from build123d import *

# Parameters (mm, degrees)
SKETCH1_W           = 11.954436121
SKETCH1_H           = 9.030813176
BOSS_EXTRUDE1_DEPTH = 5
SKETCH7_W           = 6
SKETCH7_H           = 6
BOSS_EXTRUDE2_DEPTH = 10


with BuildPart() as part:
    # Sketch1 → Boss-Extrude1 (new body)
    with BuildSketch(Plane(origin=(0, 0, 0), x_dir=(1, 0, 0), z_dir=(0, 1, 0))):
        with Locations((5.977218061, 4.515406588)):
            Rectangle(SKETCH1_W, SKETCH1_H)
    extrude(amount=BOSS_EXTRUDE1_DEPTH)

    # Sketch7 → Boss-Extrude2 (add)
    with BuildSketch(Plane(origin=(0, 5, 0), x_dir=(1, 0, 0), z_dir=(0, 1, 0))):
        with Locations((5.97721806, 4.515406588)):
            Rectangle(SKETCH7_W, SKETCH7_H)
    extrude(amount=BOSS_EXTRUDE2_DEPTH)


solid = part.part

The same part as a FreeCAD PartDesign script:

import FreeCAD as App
import Part
import Sketcher
from FreeCAD import Vector


def add_polygon(sketch, points):
    """Adds a closed chain of lines whose ends are joined by coincident constraints."""
    first, n = sketch.GeometryCount, len(points)
    for a, b in zip(points, points[1:] + points[:1]):
        sketch.addGeometry(Part.LineSegment(App.Vector(*a, 0), App.Vector(*b, 0)), False)
    for i in range(n):
        sketch.addConstraint(Sketcher.Constraint("Coincident", first + i, 2, first + (i + 1) % n, 1))

doc = App.newDocument("Part")
params = doc.addObject("Spreadsheet::Sheet", "Params")
for row, (alias, value) in enumerate([
    ("pad1_length", "5 mm"),
    ("sketch2_width", "6 mm"),
    ("pad2_length", "10 mm"),
], start=1):
    params.set(f"A{row}", alias)
    params.set(f"B{row}", "=" + value)
    params.setAlias(f"B{row}", alias)

body = doc.addObject("PartDesign::Body", "Body")

sketch1 = body.newObject("Sketcher::SketchObject", "Sketch")
sketch1.AttachmentSupport = (doc.getObject("XZ_Plane"), [""])
sketch1.MapMode = "FlatFace"
add_polygon(sketch1, [(0, -9.030813), (0, 0), (11.954436, 0), (11.954436, -9.030813)])
sketch1.addConstraint([
    Sketcher.Constraint("Vertical", 0),
    Sketcher.Constraint("Horizontal", 1),
    Sketcher.Constraint("Vertical", 2),
    Sketcher.Constraint("Horizontal", 3),
    Sketcher.Constraint("Coincident", 0, 2, -1, 1),
    Sketcher.Constraint("DistanceX", 1, 1, 1, 2, 11.954436),
    Sketcher.Constraint("DistanceY", 0, 1, 0, 2, 9.030813),
])
pad1 = body.newObject("PartDesign::Pad", "Pad")
pad1.Profile = sketch1
pad1.setExpression("Length", "Params.pad1_length")
pad1.Reversed = True

sketch2 = body.newObject("Sketcher::SketchObject", "Sketch001")
sketch2.AttachmentSupport = (doc.getObject("XZ_Plane"), [""])
sketch2.MapMode = "FlatFace"
sketch2.AttachmentOffset = App.Placement(Vector(0, 0, -5), App.Rotation())
add_polygon(sketch2, [(2.977218, -7.515407), (2.977218, -1.515407), (8.977218, -1.515407), (8.977218, -7.515407)])
sketch2.addConstraint([
    Sketcher.Constraint("Vertical", 0),
    Sketcher.Constraint("Horizontal", 1),
    Sketcher.Constraint("Vertical", 2),
    Sketcher.Constraint("Horizontal", 3),
    Sketcher.Constraint("Equal", 3, 0),
    Sketcher.Constraint("DistanceX", 1, 1, 1, 2, 6.0),
    Sketcher.Constraint("DistanceX", -1, 1, 0, 2, 2.977218),
    Sketcher.Constraint("DistanceY", 0, 2, -1, 1, 1.515407),
])
sketch2.setExpression("Constraints[9]", "Params.sketch2_width")
pad2 = body.newObject("PartDesign::Pad", "Pad001")
pad2.Profile = sketch2
pad2.setExpression("Length", "Params.pad2_length")
pad2.Reversed = True

doc.recompute()
